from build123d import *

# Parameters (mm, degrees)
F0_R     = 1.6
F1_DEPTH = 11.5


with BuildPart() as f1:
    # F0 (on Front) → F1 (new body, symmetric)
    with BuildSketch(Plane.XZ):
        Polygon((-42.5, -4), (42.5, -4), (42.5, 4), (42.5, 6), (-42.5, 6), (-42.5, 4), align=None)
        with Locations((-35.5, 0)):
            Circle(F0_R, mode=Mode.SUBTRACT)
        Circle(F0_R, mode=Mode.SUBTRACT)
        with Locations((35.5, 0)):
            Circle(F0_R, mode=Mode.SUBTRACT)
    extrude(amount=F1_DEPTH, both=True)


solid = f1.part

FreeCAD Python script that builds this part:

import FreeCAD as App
import Part
import Sketcher
Q = App.Units.Quantity

doc = App.newDocument("Part")
params = doc.addObject("Spreadsheet::Sheet", "Params")
for row, (alias, value) in enumerate([
    ("sketch1_diameter", "3.2 mm"),
    ("sketch1_width", "85 mm"),
    ("sketch1_height", "10 mm"),
    ("pad1_length", "23 mm"),
], start=1):
    params.set(f"A{row}", alias)
    params.set(f"B{row}", "=" + value)
    params.setAlias(f"B{row}", alias)

body = doc.addObject("PartDesign::Body", "Body")

# Sketch on XZ plane
sketch1 = doc.addObject("Sketcher::SketchObject", "Sketch")
body.addObject(sketch1)
sketch1.AttachmentSupport = (doc.XZ_Plane, [""])
sketch1.MapMode = "FlatFace"
sketch1.addGeometry(Part.LineSegment(App.Vector(-42.5, -4, 0), App.Vector(42.5, -4, 0)), False)
sketch1.addGeometry(Part.LineSegment(App.Vector(42.5, -4, 0), App.Vector(42.5, 6, 0)), False)
sketch1.addGeometry(Part.LineSegment(App.Vector(42.5, 6, 0), App.Vector(-42.5, 6, 0)), False)
sketch1.addGeometry(Part.LineSegment(App.Vector(-42.5, 6, 0), App.Vector(-42.5, -4, 0)), False)
sketch1.addGeometry(Part.Circle(App.Vector(-35.5, 0, 0), App.Vector(0, 0, 1), 1.6), False)
sketch1.addGeometry(Part.Circle(App.Vector(0, 0, 0), App.Vector(0, 0, 1), 1.6), False)
sketch1.addGeometry(Part.Circle(App.Vector(35.5, 0, 0), App.Vector(0, 0, 1), 1.6), False)
sketch1.addConstraint(Sketcher.Constraint("Coincident", 0, 2, 1, 1))
sketch1.addConstraint(Sketcher.Constraint("Coincident", 1, 2, 2, 1))
sketch1.addConstraint(Sketcher.Constraint("Coincident", 2, 2, 3, 1))
sketch1.addConstraint(Sketcher.Constraint("Coincident", 3, 2, 0, 1))
sketch1.addConstraint(Sketcher.Constraint("Horizontal", 0))
sketch1.addConstraint(Sketcher.Constraint("Vertical", 1))
sketch1.addConstraint(Sketcher.Constraint("Horizontal", 2))
sketch1.addConstraint(Sketcher.Constraint("Vertical", 3))
sketch1.addConstraint(Sketcher.Constraint("Coincident", 5, 3, -1, 1))
sketch1.addConstraint(Sketcher.Constraint("Equal", 4, 5))
sketch1.addConstraint(Sketcher.Constraint("Equal", 5, 6))
sketch1.addConstraint(Sketcher.Constraint("Symmetric", 4, 3, 6, 3, -1, 1))
sketch1.addConstraint(Sketcher.Constraint("PointOnObject", 4, 3, -1))
sketch1.addConstraint(Sketcher.Constraint("Diameter", 4, Q("3.2 mm")))
sketch1.addConstraint(Sketcher.Constraint("DistanceX", 0, 1, 0, 2, Q("85 mm")))
sketch1.addConstraint(Sketcher.Constraint("DistanceY", 1, 1, 1, 2, Q("10 mm")))
sketch1.addConstraint(Sketcher.Constraint("DistanceY", 0, 2, -1, 1, Q("4 mm")))
sketch1.addConstraint(Sketcher.Constraint("DistanceX", 4, 3, 6, 3, Q("71 mm")))
sketch1.addConstraint(Sketcher.Constraint("DistanceX", 6, 3, 0, 2, Q("7 mm")))
sketch1.setExpression("Constraints[13]", "Params.sketch1_diameter")
sketch1.setExpression("Constraints[14]", "Params.sketch1_width")
sketch1.setExpression("Constraints[15]", "Params.sketch1_height")
pad1 = doc.addObject("PartDesign::Pad", "Pad")
body.addObject(pad1)
pad1.Profile = sketch1
pad1.setExpression("Length", "Params.pad1_length")
pad1.Midplane = True

doc.recompute()
